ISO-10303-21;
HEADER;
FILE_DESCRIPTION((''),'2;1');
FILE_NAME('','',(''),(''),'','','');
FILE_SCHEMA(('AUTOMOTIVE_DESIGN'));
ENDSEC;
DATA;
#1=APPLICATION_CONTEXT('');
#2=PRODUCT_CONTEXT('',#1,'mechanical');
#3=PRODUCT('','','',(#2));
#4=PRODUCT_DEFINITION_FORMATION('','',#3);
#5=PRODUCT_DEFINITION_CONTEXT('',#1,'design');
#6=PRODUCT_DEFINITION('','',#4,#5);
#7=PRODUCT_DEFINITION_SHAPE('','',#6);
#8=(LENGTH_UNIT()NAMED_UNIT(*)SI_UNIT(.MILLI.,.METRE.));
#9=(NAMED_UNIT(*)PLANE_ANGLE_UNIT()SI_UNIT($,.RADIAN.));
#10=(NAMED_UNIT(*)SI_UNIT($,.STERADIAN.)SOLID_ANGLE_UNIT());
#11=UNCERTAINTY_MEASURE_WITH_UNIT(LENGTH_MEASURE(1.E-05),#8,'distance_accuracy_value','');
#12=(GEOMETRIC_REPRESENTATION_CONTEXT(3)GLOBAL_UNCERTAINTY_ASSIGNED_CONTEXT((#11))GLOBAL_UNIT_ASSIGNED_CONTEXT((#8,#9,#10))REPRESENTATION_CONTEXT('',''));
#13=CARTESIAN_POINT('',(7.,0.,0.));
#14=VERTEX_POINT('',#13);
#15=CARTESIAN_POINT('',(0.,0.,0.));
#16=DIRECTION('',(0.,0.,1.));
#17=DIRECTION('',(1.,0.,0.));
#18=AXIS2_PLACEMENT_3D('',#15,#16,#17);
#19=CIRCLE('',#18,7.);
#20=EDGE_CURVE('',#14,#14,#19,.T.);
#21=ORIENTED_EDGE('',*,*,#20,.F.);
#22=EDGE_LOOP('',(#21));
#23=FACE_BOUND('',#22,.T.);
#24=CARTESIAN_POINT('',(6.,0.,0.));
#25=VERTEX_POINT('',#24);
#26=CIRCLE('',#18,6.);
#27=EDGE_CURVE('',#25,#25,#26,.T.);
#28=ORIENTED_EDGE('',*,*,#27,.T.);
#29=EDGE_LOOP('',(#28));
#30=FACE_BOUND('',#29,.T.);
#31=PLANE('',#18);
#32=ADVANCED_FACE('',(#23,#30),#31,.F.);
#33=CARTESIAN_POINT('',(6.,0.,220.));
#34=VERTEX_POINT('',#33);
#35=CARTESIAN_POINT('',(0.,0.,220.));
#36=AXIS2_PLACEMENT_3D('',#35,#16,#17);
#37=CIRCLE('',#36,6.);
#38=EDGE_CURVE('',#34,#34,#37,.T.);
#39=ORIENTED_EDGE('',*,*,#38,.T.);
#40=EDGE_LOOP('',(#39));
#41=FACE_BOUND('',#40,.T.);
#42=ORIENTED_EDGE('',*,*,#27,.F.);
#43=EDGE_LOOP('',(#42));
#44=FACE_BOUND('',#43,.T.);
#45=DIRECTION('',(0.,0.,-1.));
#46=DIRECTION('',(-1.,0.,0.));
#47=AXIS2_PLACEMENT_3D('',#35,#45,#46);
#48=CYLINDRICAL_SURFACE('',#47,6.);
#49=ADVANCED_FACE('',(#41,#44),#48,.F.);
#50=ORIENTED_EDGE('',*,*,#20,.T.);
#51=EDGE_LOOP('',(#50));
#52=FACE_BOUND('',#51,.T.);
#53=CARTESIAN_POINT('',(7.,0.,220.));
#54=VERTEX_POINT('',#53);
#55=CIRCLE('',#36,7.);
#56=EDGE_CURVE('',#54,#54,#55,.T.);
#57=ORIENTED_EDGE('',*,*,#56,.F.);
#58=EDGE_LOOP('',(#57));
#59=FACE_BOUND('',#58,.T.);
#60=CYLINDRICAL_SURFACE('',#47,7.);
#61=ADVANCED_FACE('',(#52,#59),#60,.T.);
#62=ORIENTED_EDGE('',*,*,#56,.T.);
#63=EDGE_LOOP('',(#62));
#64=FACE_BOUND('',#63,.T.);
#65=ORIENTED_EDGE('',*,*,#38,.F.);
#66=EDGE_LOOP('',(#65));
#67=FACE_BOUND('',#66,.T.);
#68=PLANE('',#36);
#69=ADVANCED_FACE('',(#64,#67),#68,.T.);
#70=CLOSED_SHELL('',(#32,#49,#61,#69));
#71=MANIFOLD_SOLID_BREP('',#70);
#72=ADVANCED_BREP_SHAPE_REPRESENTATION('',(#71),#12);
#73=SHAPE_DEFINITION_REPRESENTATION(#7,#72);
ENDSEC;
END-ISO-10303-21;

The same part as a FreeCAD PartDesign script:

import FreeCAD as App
import Part
import Sketcher
from FreeCAD import Vector
Q = App.Units.Quantity

doc = App.newDocument("Part")
body = doc.addObject("PartDesign::Body", "Body")

# Sketch on XY plane
sketch1 = doc.addObject("Sketcher::SketchObject", "Sketch")
body.addObject(sketch1)
sketch1.AttachmentSupport = (doc.XY_Plane, [""])
sketch1.MapMode = "FlatFace"
sketch1.addGeometry([
    Part.Circle(Vector(0, 0, 0), Vector(0, 0, 1), 7),
    Part.Circle(Vector(0, 0, 0), Vector(0, 0, 1), 6),
], False)
sketch1.addConstraint([
    Sketcher.Constraint("Coincident", 0, 3, -1, 1),
    Sketcher.Constraint("Coincident", 1, 3, -1, 1),
    Sketcher.Constraint("Diameter", 0, Q("14 mm")),
    Sketcher.Constraint("Diameter", 1, Q("12 mm")),
])
pad1 = doc.addObject("PartDesign::Pad", "Pad")
body.addObject(pad1)
pad1.Profile = sketch1
pad1.Length = 220

doc.recompute()
